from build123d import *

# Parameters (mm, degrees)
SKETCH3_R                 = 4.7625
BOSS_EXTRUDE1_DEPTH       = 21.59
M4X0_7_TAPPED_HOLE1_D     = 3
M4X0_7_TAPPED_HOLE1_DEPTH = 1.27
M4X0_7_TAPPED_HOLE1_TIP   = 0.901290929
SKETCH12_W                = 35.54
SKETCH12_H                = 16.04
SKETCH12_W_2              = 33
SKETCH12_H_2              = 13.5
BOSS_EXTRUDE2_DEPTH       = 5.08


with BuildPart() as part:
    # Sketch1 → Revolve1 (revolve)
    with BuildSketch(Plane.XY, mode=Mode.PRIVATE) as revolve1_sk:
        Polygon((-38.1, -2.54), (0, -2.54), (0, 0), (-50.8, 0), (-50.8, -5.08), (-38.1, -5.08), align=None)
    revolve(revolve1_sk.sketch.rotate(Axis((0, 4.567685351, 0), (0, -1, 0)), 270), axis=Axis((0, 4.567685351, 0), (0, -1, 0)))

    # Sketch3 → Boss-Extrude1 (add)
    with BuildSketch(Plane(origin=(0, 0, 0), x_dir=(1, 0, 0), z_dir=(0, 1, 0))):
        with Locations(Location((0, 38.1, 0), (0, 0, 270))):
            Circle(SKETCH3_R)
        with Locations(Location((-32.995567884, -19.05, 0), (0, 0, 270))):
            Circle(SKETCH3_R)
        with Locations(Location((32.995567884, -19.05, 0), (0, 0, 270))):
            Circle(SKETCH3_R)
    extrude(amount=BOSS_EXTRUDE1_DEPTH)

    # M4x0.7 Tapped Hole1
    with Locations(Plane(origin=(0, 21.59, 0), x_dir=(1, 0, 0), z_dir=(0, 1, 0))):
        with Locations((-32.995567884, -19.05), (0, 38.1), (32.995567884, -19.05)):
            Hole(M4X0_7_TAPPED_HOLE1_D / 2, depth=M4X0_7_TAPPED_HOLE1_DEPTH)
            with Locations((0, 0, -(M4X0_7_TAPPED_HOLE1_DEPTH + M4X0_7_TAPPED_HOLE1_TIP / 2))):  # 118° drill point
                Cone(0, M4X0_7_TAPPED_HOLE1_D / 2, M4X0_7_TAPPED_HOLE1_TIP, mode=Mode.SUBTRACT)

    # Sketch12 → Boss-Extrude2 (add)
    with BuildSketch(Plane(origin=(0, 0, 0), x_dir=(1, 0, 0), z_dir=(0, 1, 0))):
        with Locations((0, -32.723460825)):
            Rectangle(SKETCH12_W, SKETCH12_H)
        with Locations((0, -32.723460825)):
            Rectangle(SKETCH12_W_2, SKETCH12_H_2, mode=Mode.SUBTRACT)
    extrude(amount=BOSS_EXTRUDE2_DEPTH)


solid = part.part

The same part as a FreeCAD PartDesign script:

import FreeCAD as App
import Part
import Sketcher
Q = App.Units.Quantity


def add_polygon(sketch, points):
    """Adds a closed chain of lines whose ends are joined by coincident constraints."""
    first, n = sketch.GeometryCount, len(points)
    for a, b in zip(points, points[1:] + points[:1]):
        sketch.addGeometry(Part.LineSegment(App.Vector(*a, 0), App.Vector(*b, 0)), False)
    for i in range(n):
        sketch.addConstraint(Sketcher.Constraint("Coincident", first + i, 2, first + (i + 1) % n, 1))

doc = App.newDocument("Part")
body = doc.addObject("PartDesign::Body", "Body")

# Sketch on XY plane
sketch1 = body.newObject("Sketcher::SketchObject", "Sketch")
sketch1.AttachmentSupport = (doc.getObject("XY_Plane"), [""])
sketch1.MapMode = "FlatFace"
add_polygon(sketch1, [(-38.1, -2.5), (0, -2.5), (0, 0), (-50.8, 0), (-50.8, -5.1), (-38.1, -5.1)])  # lines 0-5
sketch1.addConstraint(Sketcher.Constraint("Horizontal", 0))
sketch1.addConstraint(Sketcher.Constraint("Vertical", 1))
sketch1.addConstraint(Sketcher.Constraint("Horizontal", 2))
sketch1.addConstraint(Sketcher.Constraint("Vertical", 3))
sketch1.addConstraint(Sketcher.Constraint("Horizontal", 4))
sketch1.addConstraint(Sketcher.Constraint("Vertical", 5))
sketch1.addConstraint(Sketcher.Constraint("Coincident", 1, 2, -1, 1))
sketch1.addConstraint(Sketcher.Constraint("Equal", 1, 5))
sketch1.addConstraint(Sketcher.Constraint("DistanceX", 2, 2, 2, 1, Q("2 in")))
sketch1.addConstraint(Sketcher.Constraint("DistanceX", 0, 1, 0, 2, Q("1.5 in")))
sketch1.addConstraint(Sketcher.Constraint("DistanceY", 1, 1, 1, 2, Q("0.1 in")))
revolution = body.newObject("PartDesign::Revolution", "Revolution")
revolution.Profile = sketch1
revolution.ReferenceAxis = (sketch1, ["V_Axis"])
revolution.Angle = 360

# Sketch on XZ plane
sketch2 = body.newObject("Sketcher::SketchObject", "Sketch001")
sketch2.AttachmentSupport = (doc.getObject("XZ_Plane"), [""])
sketch2.MapMode = "FlatFace"
sketch2.addGeometry(Part.Circle(App.Vector(0, -38.1, 0), App.Vector(0, 0, 1), 4.8), False)
sketch2.addGeometry(Part.Circle(App.Vector(-33, 19.1, 0), App.Vector(0, 0, 1), 4.8), False)
sketch2.addGeometry(Part.Circle(App.Vector(33, 19.1, 0), App.Vector(0, 0, 1), 4.8), False)
sketch2.addConstraint(Sketcher.Constraint("Equal", 0, 1))
sketch2.addConstraint(Sketcher.Constraint("Equal", 1, 2))
sketch2.addConstraint(Sketcher.Constraint("Symmetric", 1, 3, 2, 3, -2))
sketch2.addConstraint(Sketcher.Constraint("PointOnObject", 0, 3, -2))
sketch2.addConstraint(Sketcher.Constraint("Diameter", 0, Q("0.375 in")))
sketch2.addConstraint(Sketcher.Constraint("DistanceY", 0, 3, -1, 1, Q("1.5 in")))
sketch2.addConstraint(Sketcher.Constraint("DistanceY", -1, 1, 1, 3, Q("0.75 in")))
sketch2.addConstraint(Sketcher.Constraint("DistanceX", 1, 3, -1, 1, Q("32.995568 mm")))
pad1 = body.newObject("PartDesign::Pad", "Pad")
pad1.Profile = sketch2
pad1.Length = Q("0.85 in")
pad1.Reversed = True

# Sketch on XZ plane
sketch3 = body.newObject("Sketcher::SketchObject", "Sketch002")
sketch3.AttachmentSupport = (doc.getObject("XZ_Plane"), [""])
sketch3.MapMode = "FlatFace"
sketch3.AttachmentOffset = App.Placement(App.Vector(0, 0, -0.85 * 25.4), App.Rotation())
sketch3.addGeometry(Part.Circle(App.Vector(-33, 19.1, 0), App.Vector(0, 0, 1), 1.5), False)
sketch3.addGeometry(Part.Circle(App.Vector(0, -38.1, 0), App.Vector(0, 0, 1), 1.5), False)
sketch3.addGeometry(Part.Circle(App.Vector(33, 19.1, 0), App.Vector(0, 0, 1), 1.5), False)
sketch3.addConstraint(Sketcher.Constraint("Equal", 0, 1))
sketch3.addConstraint(Sketcher.Constraint("Equal", 1, 2))
sketch3.addConstraint(Sketcher.Constraint("Symmetric", 0, 3, 2, 3, -2))
sketch3.addConstraint(Sketcher.Constraint("PointOnObject", 1, 3, -2))
sketch3.addConstraint(Sketcher.Constraint("DistanceY", 1, 3, -1, 1, Q("1.5 in")))
sketch3.addConstraint(Sketcher.Constraint("Diameter", 0, Q("3 mm")))
sketch3.addConstraint(Sketcher.Constraint("DistanceY", -1, 1, 0, 3, Q("0.75 in")))
sketch3.addConstraint(Sketcher.Constraint("DistanceX", 0, 3, -1, 1, Q("32.995568 mm")))
doc.recompute()
hole = body.newObject("PartDesign::Hole", "Hole")
hole.Profile = sketch3
hole.ThreadType = "None"
hole.Diameter = 3
hole.DepthType = "Dimension"
hole.Depth = Q("0.05 in")
hole.DrillPoint = "Angled"
hole.DrillPointAngle = 118
hole.Reversed = True

# Sketch on XZ plane
sketch4 = body.newObject("Sketcher::SketchObject", "Sketch003")
sketch4.AttachmentSupport = (doc.getObject("XZ_Plane"), [""])
sketch4.MapMode = "FlatFace"
add_polygon(sketch4, [(-18, 25), (-18, 41), (18, 41), (18, 25)])  # lines 0-3
add_polygon(sketch4, [(16, 39), (-16, 39), (-16, 26), (16, 26)])  # lines 4-7
sketch4.addConstraint(Sketcher.Constraint("Vertical", 0))
sketch4.addConstraint(Sketcher.Constraint("Horizontal", 1))
sketch4.addConstraint(Sketcher.Constraint("Vertical", 2))
sketch4.addConstraint(Sketcher.Constraint("Horizontal", 3))
sketch4.addConstraint(Sketcher.Constraint("Horizontal", 4))
sketch4.addConstraint(Sketcher.Constraint("Vertical", 5))
sketch4.addConstraint(Sketcher.Constraint("Horizontal", 6))
sketch4.addConstraint(Sketcher.Constraint("Vertical", 7))
sketch4.addConstraint(Sketcher.Constraint("DistanceX", 0, 2, 4, 2, Q("0.05 in")))
sketch4.addConstraint(Sketcher.Constraint("DistanceY", 4, 2, 0, 2, Q("0.05 in")))
sketch4.addConstraint(Sketcher.Constraint("DistanceY", 3, 2, 5, 2, Q("0.05 in")))
sketch4.addConstraint(Sketcher.Constraint("DistanceX", 6, 2, 2, 2, Q("0.05 in")))
sketch4.addConstraint(Sketcher.Constraint("DistanceX", 1, 1, 1, 2, Q("35.54 mm")))
sketch4.addConstraint(Sketcher.Constraint("DistanceY", 0, 1, 0, 2, Q("16.04 mm")))
sketch4.addConstraint(Sketcher.Constraint("DistanceX", 0, 2, -1, 1, Q("17.77 mm")))
sketch4.addConstraint(Sketcher.Constraint("DistanceY", -1, 1, 0, 2, Q("40.743461 mm")))
pad2 = body.newObject("PartDesign::Pad", "Pad001")
pad2.Profile = sketch4
pad2.Length = Q("0.2 in")
pad2.Reversed = True

doc.recompute()
